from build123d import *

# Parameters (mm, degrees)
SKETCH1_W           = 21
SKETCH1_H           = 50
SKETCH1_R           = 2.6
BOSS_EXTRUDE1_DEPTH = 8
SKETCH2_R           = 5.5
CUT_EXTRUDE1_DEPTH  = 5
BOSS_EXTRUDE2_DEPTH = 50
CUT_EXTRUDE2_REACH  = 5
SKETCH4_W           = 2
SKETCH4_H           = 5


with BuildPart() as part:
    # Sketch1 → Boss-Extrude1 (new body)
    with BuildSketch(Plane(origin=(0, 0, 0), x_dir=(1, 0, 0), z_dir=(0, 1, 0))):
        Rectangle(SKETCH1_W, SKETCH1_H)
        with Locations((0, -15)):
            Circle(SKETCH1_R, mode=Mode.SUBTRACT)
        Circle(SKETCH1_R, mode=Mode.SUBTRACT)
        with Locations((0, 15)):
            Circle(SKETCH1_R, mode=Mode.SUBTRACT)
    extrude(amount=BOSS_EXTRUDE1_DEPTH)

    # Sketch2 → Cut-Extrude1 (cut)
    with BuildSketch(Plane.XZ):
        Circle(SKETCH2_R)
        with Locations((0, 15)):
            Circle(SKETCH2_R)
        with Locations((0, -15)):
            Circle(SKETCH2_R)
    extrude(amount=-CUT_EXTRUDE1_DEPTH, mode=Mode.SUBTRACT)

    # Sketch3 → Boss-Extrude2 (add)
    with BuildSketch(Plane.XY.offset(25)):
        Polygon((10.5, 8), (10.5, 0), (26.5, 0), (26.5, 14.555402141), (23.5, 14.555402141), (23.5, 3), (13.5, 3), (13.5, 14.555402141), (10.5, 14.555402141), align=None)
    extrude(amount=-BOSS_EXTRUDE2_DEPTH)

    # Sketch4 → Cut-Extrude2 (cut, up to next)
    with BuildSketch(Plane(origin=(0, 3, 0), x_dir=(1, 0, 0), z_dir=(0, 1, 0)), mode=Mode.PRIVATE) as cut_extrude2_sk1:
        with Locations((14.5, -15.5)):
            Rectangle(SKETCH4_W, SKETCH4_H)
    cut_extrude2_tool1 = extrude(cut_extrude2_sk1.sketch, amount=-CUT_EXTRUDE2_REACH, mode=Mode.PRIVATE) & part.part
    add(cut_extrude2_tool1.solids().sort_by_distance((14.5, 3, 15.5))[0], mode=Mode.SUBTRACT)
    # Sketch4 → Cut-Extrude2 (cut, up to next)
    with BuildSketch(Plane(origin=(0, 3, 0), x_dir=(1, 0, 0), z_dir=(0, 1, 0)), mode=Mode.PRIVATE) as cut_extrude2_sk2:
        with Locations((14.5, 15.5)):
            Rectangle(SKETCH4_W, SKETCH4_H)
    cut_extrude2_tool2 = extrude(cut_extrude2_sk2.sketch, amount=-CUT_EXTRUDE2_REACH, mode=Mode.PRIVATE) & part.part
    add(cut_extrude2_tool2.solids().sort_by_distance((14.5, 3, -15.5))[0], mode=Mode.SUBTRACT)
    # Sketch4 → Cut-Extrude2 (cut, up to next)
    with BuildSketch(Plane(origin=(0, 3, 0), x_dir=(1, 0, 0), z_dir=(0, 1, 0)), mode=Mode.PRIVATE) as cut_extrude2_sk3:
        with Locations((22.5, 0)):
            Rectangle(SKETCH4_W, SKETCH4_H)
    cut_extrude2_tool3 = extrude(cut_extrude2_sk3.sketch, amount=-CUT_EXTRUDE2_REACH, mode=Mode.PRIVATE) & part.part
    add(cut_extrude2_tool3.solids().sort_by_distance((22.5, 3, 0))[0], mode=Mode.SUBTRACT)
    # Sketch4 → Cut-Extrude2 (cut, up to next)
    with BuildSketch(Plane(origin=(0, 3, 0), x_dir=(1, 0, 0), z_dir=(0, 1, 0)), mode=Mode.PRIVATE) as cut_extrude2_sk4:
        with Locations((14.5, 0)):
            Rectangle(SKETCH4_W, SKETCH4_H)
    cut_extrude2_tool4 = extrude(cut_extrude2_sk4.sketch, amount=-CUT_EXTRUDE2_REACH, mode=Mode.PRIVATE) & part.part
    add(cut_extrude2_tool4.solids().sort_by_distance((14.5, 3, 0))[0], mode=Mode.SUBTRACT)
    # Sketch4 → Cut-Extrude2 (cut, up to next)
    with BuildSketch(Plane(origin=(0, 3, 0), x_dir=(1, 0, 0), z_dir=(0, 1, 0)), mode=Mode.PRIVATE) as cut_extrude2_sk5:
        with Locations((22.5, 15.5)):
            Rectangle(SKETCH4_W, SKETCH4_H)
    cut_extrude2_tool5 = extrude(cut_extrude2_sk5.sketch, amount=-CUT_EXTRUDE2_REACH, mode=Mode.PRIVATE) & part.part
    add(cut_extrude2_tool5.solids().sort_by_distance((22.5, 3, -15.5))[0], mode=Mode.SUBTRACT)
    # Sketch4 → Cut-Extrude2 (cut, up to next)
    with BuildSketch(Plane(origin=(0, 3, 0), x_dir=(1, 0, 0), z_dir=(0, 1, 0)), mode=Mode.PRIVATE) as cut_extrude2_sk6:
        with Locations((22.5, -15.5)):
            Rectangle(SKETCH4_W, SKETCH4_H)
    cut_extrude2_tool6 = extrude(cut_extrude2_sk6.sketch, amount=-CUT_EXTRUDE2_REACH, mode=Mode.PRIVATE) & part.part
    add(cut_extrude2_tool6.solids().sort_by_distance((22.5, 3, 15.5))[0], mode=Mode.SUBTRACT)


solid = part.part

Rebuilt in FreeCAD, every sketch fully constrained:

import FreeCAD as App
import Part
import Sketcher


def add_polygon(sketch, points):
    """Adds a closed chain of lines whose ends are joined by coincident constraints."""
    first, n = sketch.GeometryCount, len(points)
    for a, b in zip(points, points[1:] + points[:1]):
        sketch.addGeometry(Part.LineSegment(App.Vector(*a, 0), App.Vector(*b, 0)), False)
    for i in range(n):
        sketch.addConstraint(Sketcher.Constraint("Coincident", first + i, 2, first + (i + 1) % n, 1))

doc = App.newDocument("Part")
body = doc.addObject("PartDesign::Body", "Body")

# Sketch on XZ plane
sketch1 = body.newObject("Sketcher::SketchObject", "Sketch")
sketch1.AttachmentSupport = (doc.getObject("XZ_Plane"), [""])
sketch1.MapMode = "FlatFace"
add_polygon(sketch1, [(-10.5, -25), (-10.5, 25), (10.5, 25), (10.5, -25)])  # lines 0-3
sketch1.addGeometry(Part.Circle(App.Vector(0, 15, 0), App.Vector(0, 0, 1), 2.6), False)  # 4
sketch1.addGeometry(Part.Circle(App.Vector(0, 0, 0), App.Vector(0, 0, 1), 2.6), False)  # 5
sketch1.addGeometry(Part.Circle(App.Vector(0, -15, 0), App.Vector(0, 0, 1), 2.6), False)  # 6
sketch1.addConstraint([
    Sketcher.Constraint("Vertical", 0),
    Sketcher.Constraint("Horizontal", 1),
    Sketcher.Constraint("Vertical", 2),
    Sketcher.Constraint("Horizontal", 3),
    Sketcher.Constraint("Coincident", 5, 3, -1, 1),
    Sketcher.Constraint("Equal", 4, 5),
    Sketcher.Constraint("Equal", 5, 6),
    Sketcher.Constraint("Symmetric", 4, 3, 6, 3, -1, 1),
    Sketcher.Constraint("Symmetric", 0, 2, 2, 2, -1, 1),
    Sketcher.Constraint("PointOnObject", 4, 3, -2),
    Sketcher.Constraint("Diameter", 4, 5.2),
    Sketcher.Constraint("DistanceX", 1, 1, 1, 2, 21.0),
    Sketcher.Constraint("DistanceY", 0, 1, 0, 2, 50.0),
    Sketcher.Constraint("DistanceY", -1, 1, 4, 3, 15.0),
])
pad1 = body.newObject("PartDesign::Pad", "Pad")
pad1.Profile = sketch1
pad1.Length = 8
pad1.Reversed = True

# Sketch on XZ plane
sketch2 = body.newObject("Sketcher::SketchObject", "Sketch001")
sketch2.AttachmentSupport = (doc.getObject("XZ_Plane"), [""])
sketch2.MapMode = "FlatFace"
sketch2.addGeometry([
    Part.Circle(App.Vector(0, 0, 0), App.Vector(0, 0, 1), 5.5),
    Part.Circle(App.Vector(0, 15, 0), App.Vector(0, 0, 1), 5.5),
    Part.Circle(App.Vector(0, -15, 0), App.Vector(0, 0, 1), 5.5),
], False)
sketch2.addConstraint([
    Sketcher.Constraint("Coincident", 0, 3, -1, 1),
    Sketcher.Constraint("Equal", 0, 1),
    Sketcher.Constraint("Equal", 1, 2),
    Sketcher.Constraint("Symmetric", 1, 3, 2, 3, -1, 1),
    Sketcher.Constraint("PointOnObject", 1, 3, -2),
    Sketcher.Constraint("Diameter", 0, 11.0),
    Sketcher.Constraint("DistanceY", -1, 1, 1, 3, 15.0),
])
pocket1 = body.newObject("PartDesign::Pocket", "Pocket")
pocket1.Profile = sketch2
pocket1.Length = 5

# Sketch on XY plane
sketch3 = body.newObject("Sketcher::SketchObject", "Sketch002")
sketch3.AttachmentSupport = (doc.getObject("XY_Plane"), [""])
sketch3.MapMode = "FlatFace"
sketch3.AttachmentOffset = App.Placement(App.Vector(0, 0, 25), App.Rotation())
add_polygon(sketch3, [(10.5, 0), (26.5, 0), (26.5, 14.555402), (23.5, 14.555402), (23.5, 3), (13.5, 3), (13.5, 14.555402), (10.5, 14.555402)])  # lines 0-7
sketch3.addConstraint([
    Sketcher.Constraint("Horizontal", 0),
    Sketcher.Constraint("Vertical", 1),
    Sketcher.Constraint("Horizontal", 2),
    Sketcher.Constraint("Vertical", 3),
    Sketcher.Constraint("Horizontal", 4),
    Sketcher.Constraint("Vertical", 5),
    Sketcher.Constraint("Horizontal", 6),
    Sketcher.Constraint("Vertical", 7),
    Sketcher.Constraint("PointOnObject", 0, 2, -1),
    Sketcher.Constraint("Horizontal", 2, 2, 5, 2),
    Sketcher.Constraint("Equal", 2, 6),
    Sketcher.Constraint("DistanceX", 0, 1, 0, 2, 16.0),
    Sketcher.Constraint("DistanceX", 2, 2, 2, 1, 3.0),
    Sketcher.Constraint("DistanceY", -1, 1, 3, 2, 3.0),
    Sketcher.Constraint("DistanceX", -1, 1, 0, 2, 26.5),
    Sketcher.Constraint("DistanceY", 1, 1, 1, 2, 14.555402),
])
pad2 = body.newObject("PartDesign::Pad", "Pad001")
pad2.Profile = sketch3
pad2.Length = 50
pad2.Reversed = True

# Sketch on XZ plane
sketch4 = body.newObject("Sketcher::SketchObject", "Sketch003")
sketch4.AttachmentSupport = (doc.getObject("XZ_Plane"), [""])
sketch4.MapMode = "FlatFace"
sketch4.AttachmentOffset = App.Placement(App.Vector(0, 0, -3), App.Rotation())
add_polygon(sketch4, [(13.5, 13), (13.5, 18), (15.5, 18), (15.5, 13)])  # lines 0-3
sketch4.addConstraint([
    Sketcher.Constraint("Vertical", 0),
    Sketcher.Constraint("Horizontal", 1),
    Sketcher.Constraint("Vertical", 2),
    Sketcher.Constraint("Horizontal", 3),
    Sketcher.Constraint("DistanceX", 1, 1, 1, 2, 2.0),
    Sketcher.Constraint("DistanceY", 0, 1, 0, 2, 5.0),
    Sketcher.Constraint("DistanceY", -1, 1, 0, 2, 18.0),
    Sketcher.Constraint("DistanceX", -1, 1, 0, 2, 13.5),
])
pocket2 = body.newObject("PartDesign::Pocket", "Pocket001")
pocket2.Profile = sketch4
pocket2.Type = "UpToFirst"
pocket2.Reversed = True

# Sketch on XZ plane
sketch5 = body.newObject("Sketcher::SketchObject", "Sketch004")
sketch5.AttachmentSupport = (doc.getObject("XZ_Plane"), [""])
sketch5.MapMode = "FlatFace"
sketch5.AttachmentOffset = App.Placement(App.Vector(0, 0, -3), App.Rotation())
add_polygon(sketch5, [(13.5, -18), (13.5, -13), (15.5, -13), (15.5, -18)])  # lines 0-3
sketch5.addConstraint([
    Sketcher.Constraint("Vertical", 0),
    Sketcher.Constraint("Horizontal", 1),
    Sketcher.Constraint("Vertical", 2),
    Sketcher.Constraint("Horizontal", 3),
    Sketcher.Constraint("DistanceX", 1, 1, 1, 2, 2.0),
    Sketcher.Constraint("DistanceY", 0, 1, 0, 2, 5.0),
    Sketcher.Constraint("DistanceY", 0, 2, -1, 1, 13.0),
    Sketcher.Constraint("DistanceX", -1, 1, 0, 2, 13.5),
])
pocket3 = body.newObject("PartDesign::Pocket", "Pocket002")
pocket3.Profile = sketch5
pocket3.Type = "UpToFirst"
pocket3.Reversed = True

# Sketch on XZ plane
sketch6 = body.newObject("Sketcher::SketchObject", "Sketch005")
sketch6.AttachmentSupport = (doc.getObject("XZ_Plane"), [""])
sketch6.MapMode = "FlatFace"
sketch6.AttachmentOffset = App.Placement(App.Vector(0, 0, -3), App.Rotation())
add_polygon(sketch6, [(21.5, -2.5), (21.5, 2.5), (23.5, 2.5), (23.5, -2.5)])  # lines 0-3
sketch6.addConstraint([
    Sketcher.Constraint("Vertical", 0),
    Sketcher.Constraint("Horizontal", 1),
    Sketcher.Constraint("Vertical", 2),
    Sketcher.Constraint("Horizontal", 3),
    Sketcher.Constraint("DistanceX", 1, 1, 1, 2, 2.0),
    Sketcher.Constraint("DistanceY", 0, 1, 0, 2, 5.0),
    Sketcher.Constraint("DistanceX", -1, 1, 0, 2, 21.5),
    Sketcher.Constraint("DistanceY", -1, 1, 0, 2, 2.5),
])
pocket4 = body.newObject("PartDesign::Pocket", "Pocket003")
pocket4.Profile = sketch6
pocket4.Type = "UpToFirst"
pocket4.Reversed = True

# Sketch on XZ plane
sketch7 = body.newObject("Sketcher::SketchObject", "Sketch006")
sketch7.AttachmentSupport = (doc.getObject("XZ_Plane"), [""])
sketch7.MapMode = "FlatFace"
sketch7.AttachmentOffset = App.Placement(App.Vector(0, 0, -3), App.Rotation())
add_polygon(sketch7, [(13.5, -2.5), (13.5, 2.5), (15.5, 2.5), (15.5, -2.5)])  # lines 0-3
sketch7.addConstraint([
    Sketcher.Constraint("Vertical", 0),
    Sketcher.Constraint("Horizontal", 1),
    Sketcher.Constraint("Vertical", 2),
    Sketcher.Constraint("Horizontal", 3),
    Sketcher.Constraint("DistanceX", 1, 1, 1, 2, 2.0),
    Sketcher.Constraint("DistanceY", 0, 1, 0, 2, 5.0),
    Sketcher.Constraint("DistanceX", -1, 1, 0, 2, 13.5),
    Sketcher.Constraint("DistanceY", -1, 1, 0, 2, 2.5),
])
pocket5 = body.newObject("PartDesign::Pocket", "Pocket004")
pocket5.Profile = sketch7
pocket5.Type = "UpToFirst"
pocket5.Reversed = True

# Sketch on XZ plane
sketch8 = body.newObject("Sketcher::SketchObject", "Sketch007")
sketch8.AttachmentSupport = (doc.getObject("XZ_Plane"), [""])
sketch8.MapMode = "FlatFace"
sketch8.AttachmentOffset = App.Placement(App.Vector(0, 0, -3), App.Rotation())
add_polygon(sketch8, [(21.5, -18), (21.5, -13), (23.5, -13), (23.5, -18)])  # lines 0-3
sketch8.addConstraint([
    Sketcher.Constraint("Vertical", 0),
    Sketcher.Constraint("Horizontal", 1),
    Sketcher.Constraint("Vertical", 2),
    Sketcher.Constraint("Horizontal", 3),
    Sketcher.Constraint("DistanceX", 1, 1, 1, 2, 2.0),
    Sketcher.Constraint("DistanceY", 0, 1, 0, 2, 5.0),
    Sketcher.Constraint("DistanceY", 0, 2, -1, 1, 13.0),
    Sketcher.Constraint("DistanceX", -1, 1, 0, 2, 21.5),
])
pocket6 = body.newObject("PartDesign::Pocket", "Pocket005")
pocket6.Profile = sketch8
pocket6.Type = "UpToFirst"
pocket6.Reversed = True

# Sketch on XZ plane
sketch9 = body.newObject("Sketcher::SketchObject", "Sketch008")
sketch9.AttachmentSupport = (doc.getObject("XZ_Plane"), [""])
sketch9.MapMode = "FlatFace"
sketch9.AttachmentOffset = App.Placement(App.Vector(0, 0, -3), App.Rotation())
add_polygon(sketch9, [(21.5, 13), (21.5, 18), (23.5, 18), (23.5, 13)])  # lines 0-3
sketch9.addConstraint([
    Sketcher.Constraint("Vertical", 0),
    Sketcher.Constraint("Horizontal", 1),
    Sketcher.Constraint("Vertical", 2),
    Sketcher.Constraint("Horizontal", 3),
    Sketcher.Constraint("DistanceX", 1, 1, 1, 2, 2.0),
    Sketcher.Constraint("DistanceY", 0, 1, 0, 2, 5.0),
    Sketcher.Constraint("DistanceY", -1, 1, 0, 2, 18.0),
    Sketcher.Constraint("DistanceX", -1, 1, 0, 2, 21.5),
])
pocket7 = body.newObject("PartDesign::Pocket", "Pocket006")
pocket7.Profile = sketch9
pocket7.Type = "UpToFirst"
pocket7.Reversed = True

doc.recompute()
